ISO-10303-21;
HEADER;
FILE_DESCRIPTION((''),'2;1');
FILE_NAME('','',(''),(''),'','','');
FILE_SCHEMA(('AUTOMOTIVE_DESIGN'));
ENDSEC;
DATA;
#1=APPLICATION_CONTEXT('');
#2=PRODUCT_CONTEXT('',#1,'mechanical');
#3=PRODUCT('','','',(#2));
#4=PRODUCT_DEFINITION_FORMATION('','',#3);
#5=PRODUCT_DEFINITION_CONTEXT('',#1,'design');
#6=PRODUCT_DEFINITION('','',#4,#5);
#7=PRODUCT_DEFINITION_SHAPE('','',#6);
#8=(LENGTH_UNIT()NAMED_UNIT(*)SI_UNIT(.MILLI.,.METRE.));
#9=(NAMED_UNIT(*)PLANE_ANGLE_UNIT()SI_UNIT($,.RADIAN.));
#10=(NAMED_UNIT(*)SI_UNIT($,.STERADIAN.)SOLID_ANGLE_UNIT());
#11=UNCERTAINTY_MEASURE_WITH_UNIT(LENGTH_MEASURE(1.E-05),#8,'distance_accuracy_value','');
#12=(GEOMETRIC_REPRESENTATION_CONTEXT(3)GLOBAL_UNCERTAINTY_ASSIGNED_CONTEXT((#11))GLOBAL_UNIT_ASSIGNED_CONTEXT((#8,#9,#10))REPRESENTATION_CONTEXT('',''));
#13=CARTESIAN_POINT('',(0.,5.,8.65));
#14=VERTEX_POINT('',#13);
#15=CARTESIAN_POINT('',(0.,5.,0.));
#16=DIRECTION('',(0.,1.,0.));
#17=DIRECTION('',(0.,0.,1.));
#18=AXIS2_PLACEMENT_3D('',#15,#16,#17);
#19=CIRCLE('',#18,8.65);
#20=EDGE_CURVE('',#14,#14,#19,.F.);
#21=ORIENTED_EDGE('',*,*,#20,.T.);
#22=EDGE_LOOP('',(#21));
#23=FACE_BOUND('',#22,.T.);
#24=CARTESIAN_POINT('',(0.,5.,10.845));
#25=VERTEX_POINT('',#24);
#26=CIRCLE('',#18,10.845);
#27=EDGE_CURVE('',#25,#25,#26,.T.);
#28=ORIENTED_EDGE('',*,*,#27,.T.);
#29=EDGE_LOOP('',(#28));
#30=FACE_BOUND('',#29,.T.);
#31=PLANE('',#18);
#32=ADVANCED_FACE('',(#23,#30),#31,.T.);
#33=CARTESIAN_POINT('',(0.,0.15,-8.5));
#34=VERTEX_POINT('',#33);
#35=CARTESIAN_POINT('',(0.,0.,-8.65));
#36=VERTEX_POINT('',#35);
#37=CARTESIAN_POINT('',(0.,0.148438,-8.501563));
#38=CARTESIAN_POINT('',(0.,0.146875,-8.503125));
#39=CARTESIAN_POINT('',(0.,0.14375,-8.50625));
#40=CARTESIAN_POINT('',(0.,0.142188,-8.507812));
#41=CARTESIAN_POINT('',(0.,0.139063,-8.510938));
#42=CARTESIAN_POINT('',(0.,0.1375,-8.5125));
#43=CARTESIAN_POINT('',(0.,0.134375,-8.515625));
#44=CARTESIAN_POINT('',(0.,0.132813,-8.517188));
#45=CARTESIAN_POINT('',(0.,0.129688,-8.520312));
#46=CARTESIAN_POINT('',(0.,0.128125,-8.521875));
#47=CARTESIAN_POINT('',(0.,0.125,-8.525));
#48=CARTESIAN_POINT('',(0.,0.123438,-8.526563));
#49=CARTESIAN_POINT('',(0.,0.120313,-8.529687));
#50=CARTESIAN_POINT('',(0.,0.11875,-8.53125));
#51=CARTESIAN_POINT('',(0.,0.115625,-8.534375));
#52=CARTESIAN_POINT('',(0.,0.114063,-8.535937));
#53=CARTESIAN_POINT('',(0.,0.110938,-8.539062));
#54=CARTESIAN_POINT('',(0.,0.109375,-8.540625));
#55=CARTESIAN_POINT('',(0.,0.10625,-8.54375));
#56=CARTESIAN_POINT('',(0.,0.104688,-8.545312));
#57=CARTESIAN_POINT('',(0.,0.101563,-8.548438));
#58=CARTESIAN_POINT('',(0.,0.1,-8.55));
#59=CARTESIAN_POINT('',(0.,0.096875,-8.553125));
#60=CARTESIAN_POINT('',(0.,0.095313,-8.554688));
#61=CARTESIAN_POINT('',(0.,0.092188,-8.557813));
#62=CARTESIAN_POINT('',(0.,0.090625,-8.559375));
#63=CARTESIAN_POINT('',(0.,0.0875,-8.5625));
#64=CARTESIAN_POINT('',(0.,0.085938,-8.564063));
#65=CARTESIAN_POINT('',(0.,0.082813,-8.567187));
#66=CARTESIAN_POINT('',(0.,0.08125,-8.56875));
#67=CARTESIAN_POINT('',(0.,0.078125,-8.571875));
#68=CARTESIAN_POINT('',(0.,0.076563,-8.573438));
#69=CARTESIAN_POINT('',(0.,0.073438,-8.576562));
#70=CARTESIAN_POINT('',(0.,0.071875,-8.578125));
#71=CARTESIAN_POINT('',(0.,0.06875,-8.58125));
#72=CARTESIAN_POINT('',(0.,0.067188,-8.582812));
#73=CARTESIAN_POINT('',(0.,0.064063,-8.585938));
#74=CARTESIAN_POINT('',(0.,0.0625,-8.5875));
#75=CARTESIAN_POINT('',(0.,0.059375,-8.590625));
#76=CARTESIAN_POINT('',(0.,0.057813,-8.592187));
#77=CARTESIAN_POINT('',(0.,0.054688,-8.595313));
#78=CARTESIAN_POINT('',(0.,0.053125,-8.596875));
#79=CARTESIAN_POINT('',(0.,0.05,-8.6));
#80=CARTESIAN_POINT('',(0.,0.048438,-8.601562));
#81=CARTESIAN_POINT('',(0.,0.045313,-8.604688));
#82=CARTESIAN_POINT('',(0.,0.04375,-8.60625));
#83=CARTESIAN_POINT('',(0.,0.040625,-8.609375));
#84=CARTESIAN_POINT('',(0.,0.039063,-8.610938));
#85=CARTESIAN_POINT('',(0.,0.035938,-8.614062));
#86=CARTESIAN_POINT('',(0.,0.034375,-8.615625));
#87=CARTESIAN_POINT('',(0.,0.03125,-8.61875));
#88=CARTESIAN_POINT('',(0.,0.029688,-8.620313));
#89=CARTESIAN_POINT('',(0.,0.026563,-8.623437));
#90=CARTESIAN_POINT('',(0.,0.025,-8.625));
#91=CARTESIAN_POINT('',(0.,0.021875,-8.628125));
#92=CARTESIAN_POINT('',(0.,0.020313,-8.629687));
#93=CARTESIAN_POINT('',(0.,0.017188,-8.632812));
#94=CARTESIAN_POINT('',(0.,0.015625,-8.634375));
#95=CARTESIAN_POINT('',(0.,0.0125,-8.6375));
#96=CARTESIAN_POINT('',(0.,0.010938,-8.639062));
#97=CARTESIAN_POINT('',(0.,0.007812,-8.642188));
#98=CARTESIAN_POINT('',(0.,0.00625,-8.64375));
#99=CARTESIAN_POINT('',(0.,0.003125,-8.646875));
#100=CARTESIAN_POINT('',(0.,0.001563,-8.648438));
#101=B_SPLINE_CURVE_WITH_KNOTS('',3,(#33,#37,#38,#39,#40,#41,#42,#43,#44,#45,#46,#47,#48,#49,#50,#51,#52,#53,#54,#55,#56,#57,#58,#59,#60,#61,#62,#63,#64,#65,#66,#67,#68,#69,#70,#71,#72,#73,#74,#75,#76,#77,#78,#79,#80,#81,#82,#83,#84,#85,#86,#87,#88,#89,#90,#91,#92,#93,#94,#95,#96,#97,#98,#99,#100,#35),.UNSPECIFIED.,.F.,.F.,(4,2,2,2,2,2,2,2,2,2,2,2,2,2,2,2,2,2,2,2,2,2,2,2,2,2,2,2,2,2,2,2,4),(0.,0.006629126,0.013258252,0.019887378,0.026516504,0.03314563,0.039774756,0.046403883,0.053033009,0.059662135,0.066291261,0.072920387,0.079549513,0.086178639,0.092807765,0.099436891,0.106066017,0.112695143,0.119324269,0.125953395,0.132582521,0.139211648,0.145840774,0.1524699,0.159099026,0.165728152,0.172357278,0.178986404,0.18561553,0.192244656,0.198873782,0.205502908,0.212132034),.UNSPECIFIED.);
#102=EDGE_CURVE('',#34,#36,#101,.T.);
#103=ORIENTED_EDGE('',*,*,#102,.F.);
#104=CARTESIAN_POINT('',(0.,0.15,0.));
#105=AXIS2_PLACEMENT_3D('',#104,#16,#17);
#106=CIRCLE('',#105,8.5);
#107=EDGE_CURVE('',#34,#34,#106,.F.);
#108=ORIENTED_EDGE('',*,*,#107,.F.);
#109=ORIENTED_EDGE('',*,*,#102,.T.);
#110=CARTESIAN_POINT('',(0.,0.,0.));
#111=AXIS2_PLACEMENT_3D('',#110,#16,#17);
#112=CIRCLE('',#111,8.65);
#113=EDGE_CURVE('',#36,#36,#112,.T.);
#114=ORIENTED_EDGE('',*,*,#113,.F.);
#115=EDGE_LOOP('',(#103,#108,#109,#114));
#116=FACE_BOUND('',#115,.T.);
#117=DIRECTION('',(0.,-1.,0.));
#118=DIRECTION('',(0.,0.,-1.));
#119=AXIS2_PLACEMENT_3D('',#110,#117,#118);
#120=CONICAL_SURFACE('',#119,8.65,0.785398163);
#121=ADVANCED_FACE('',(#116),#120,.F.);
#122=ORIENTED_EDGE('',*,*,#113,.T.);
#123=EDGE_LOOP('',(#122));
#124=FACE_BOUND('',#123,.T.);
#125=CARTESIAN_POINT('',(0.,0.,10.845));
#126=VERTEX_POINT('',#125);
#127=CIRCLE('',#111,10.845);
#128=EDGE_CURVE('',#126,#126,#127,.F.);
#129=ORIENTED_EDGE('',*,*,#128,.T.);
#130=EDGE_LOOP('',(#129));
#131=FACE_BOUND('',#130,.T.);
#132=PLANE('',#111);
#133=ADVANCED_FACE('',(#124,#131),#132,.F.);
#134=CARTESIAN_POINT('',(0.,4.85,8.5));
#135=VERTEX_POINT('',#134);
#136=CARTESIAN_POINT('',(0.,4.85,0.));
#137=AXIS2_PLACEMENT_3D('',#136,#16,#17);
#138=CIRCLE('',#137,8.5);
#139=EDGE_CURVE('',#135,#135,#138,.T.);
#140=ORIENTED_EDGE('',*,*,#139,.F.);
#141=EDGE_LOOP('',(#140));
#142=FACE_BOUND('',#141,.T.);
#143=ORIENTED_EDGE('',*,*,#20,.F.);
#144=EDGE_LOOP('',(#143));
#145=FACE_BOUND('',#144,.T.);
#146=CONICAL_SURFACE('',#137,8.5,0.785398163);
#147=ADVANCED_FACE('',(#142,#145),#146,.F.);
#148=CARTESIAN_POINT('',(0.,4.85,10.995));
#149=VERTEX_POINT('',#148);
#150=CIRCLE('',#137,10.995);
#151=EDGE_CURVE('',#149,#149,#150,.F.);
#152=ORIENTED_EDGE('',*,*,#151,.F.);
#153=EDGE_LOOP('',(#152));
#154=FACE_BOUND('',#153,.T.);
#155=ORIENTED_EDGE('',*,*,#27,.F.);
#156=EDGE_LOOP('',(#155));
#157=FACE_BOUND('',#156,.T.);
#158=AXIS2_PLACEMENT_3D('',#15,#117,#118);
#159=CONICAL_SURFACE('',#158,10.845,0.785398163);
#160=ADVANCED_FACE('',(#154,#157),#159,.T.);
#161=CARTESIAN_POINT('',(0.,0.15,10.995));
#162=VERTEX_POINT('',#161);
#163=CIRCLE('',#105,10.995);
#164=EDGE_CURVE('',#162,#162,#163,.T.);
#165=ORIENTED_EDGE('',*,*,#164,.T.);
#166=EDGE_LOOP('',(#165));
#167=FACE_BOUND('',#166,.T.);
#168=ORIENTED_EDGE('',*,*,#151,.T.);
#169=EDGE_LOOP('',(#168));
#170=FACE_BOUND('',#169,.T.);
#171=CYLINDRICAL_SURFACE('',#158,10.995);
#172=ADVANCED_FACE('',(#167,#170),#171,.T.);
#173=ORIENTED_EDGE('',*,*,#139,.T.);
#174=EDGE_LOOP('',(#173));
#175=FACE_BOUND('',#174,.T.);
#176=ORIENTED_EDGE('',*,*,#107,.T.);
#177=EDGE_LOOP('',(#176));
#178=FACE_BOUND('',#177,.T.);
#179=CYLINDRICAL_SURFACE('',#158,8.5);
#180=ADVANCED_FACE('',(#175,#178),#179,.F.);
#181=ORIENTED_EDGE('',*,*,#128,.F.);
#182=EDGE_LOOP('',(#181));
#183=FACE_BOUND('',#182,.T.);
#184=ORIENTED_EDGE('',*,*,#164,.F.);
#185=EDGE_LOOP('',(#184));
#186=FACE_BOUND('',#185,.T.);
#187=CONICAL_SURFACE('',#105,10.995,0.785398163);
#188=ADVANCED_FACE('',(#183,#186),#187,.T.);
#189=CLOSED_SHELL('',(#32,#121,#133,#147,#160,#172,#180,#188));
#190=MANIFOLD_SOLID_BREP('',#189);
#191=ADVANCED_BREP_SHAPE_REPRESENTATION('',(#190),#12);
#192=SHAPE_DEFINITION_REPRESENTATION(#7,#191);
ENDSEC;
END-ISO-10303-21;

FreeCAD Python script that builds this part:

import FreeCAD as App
import Part
import Sketcher


def edges_at(feature, points):
    """Names of the edges that pass closest to the given points."""
    edges = feature.Shape.Edges
    near = lambda p: min(range(len(edges)), key=lambda i: edges[i].distToShape(Part.Vertex(*p))[0])
    return sorted({f"Edge{near(p) + 1}" for p in points})

doc = App.newDocument("Part")
body = doc.addObject("PartDesign::Body", "Body")

# Sketch on XZ plane
sketch1 = body.newObject("Sketcher::SketchObject", "Sketch")
sketch1.AttachmentSupport = (doc.getObject("XZ_Plane"), [""])
sketch1.MapMode = "FlatFace"
sketch1.addGeometry([
    Part.Circle(App.Vector(0, 0, 0), App.Vector(0, 0, 1), 11),
    Part.Circle(App.Vector(0, 0, 0), App.Vector(0, 0, 1), 8),
], False)
sketch1.addConstraint([
    Sketcher.Constraint("Coincident", 0, 3, -1, 1),
    Sketcher.Constraint("Coincident", 1, 3, -1, 1),
    Sketcher.Constraint("Diameter", 1, 17.0),
    Sketcher.Constraint("Diameter", 0, 21.99),
])
pad1 = body.newObject("PartDesign::Pad", "Pad")
pad1.Profile = sketch1
pad1.Length = 5
pad1.Reversed = True
doc.recompute()

chamfer = body.newObject("PartDesign::Chamfer", "Chamfer")
chamfer.Base = (pad1, edges_at(pad1, [
    (0, 0, -10.995),
    (0, 5, -10.995),
    (0, 0, -8.5),
    (0, 5, -8.5),
]))
chamfer.Size = 0.15

doc.recompute()
